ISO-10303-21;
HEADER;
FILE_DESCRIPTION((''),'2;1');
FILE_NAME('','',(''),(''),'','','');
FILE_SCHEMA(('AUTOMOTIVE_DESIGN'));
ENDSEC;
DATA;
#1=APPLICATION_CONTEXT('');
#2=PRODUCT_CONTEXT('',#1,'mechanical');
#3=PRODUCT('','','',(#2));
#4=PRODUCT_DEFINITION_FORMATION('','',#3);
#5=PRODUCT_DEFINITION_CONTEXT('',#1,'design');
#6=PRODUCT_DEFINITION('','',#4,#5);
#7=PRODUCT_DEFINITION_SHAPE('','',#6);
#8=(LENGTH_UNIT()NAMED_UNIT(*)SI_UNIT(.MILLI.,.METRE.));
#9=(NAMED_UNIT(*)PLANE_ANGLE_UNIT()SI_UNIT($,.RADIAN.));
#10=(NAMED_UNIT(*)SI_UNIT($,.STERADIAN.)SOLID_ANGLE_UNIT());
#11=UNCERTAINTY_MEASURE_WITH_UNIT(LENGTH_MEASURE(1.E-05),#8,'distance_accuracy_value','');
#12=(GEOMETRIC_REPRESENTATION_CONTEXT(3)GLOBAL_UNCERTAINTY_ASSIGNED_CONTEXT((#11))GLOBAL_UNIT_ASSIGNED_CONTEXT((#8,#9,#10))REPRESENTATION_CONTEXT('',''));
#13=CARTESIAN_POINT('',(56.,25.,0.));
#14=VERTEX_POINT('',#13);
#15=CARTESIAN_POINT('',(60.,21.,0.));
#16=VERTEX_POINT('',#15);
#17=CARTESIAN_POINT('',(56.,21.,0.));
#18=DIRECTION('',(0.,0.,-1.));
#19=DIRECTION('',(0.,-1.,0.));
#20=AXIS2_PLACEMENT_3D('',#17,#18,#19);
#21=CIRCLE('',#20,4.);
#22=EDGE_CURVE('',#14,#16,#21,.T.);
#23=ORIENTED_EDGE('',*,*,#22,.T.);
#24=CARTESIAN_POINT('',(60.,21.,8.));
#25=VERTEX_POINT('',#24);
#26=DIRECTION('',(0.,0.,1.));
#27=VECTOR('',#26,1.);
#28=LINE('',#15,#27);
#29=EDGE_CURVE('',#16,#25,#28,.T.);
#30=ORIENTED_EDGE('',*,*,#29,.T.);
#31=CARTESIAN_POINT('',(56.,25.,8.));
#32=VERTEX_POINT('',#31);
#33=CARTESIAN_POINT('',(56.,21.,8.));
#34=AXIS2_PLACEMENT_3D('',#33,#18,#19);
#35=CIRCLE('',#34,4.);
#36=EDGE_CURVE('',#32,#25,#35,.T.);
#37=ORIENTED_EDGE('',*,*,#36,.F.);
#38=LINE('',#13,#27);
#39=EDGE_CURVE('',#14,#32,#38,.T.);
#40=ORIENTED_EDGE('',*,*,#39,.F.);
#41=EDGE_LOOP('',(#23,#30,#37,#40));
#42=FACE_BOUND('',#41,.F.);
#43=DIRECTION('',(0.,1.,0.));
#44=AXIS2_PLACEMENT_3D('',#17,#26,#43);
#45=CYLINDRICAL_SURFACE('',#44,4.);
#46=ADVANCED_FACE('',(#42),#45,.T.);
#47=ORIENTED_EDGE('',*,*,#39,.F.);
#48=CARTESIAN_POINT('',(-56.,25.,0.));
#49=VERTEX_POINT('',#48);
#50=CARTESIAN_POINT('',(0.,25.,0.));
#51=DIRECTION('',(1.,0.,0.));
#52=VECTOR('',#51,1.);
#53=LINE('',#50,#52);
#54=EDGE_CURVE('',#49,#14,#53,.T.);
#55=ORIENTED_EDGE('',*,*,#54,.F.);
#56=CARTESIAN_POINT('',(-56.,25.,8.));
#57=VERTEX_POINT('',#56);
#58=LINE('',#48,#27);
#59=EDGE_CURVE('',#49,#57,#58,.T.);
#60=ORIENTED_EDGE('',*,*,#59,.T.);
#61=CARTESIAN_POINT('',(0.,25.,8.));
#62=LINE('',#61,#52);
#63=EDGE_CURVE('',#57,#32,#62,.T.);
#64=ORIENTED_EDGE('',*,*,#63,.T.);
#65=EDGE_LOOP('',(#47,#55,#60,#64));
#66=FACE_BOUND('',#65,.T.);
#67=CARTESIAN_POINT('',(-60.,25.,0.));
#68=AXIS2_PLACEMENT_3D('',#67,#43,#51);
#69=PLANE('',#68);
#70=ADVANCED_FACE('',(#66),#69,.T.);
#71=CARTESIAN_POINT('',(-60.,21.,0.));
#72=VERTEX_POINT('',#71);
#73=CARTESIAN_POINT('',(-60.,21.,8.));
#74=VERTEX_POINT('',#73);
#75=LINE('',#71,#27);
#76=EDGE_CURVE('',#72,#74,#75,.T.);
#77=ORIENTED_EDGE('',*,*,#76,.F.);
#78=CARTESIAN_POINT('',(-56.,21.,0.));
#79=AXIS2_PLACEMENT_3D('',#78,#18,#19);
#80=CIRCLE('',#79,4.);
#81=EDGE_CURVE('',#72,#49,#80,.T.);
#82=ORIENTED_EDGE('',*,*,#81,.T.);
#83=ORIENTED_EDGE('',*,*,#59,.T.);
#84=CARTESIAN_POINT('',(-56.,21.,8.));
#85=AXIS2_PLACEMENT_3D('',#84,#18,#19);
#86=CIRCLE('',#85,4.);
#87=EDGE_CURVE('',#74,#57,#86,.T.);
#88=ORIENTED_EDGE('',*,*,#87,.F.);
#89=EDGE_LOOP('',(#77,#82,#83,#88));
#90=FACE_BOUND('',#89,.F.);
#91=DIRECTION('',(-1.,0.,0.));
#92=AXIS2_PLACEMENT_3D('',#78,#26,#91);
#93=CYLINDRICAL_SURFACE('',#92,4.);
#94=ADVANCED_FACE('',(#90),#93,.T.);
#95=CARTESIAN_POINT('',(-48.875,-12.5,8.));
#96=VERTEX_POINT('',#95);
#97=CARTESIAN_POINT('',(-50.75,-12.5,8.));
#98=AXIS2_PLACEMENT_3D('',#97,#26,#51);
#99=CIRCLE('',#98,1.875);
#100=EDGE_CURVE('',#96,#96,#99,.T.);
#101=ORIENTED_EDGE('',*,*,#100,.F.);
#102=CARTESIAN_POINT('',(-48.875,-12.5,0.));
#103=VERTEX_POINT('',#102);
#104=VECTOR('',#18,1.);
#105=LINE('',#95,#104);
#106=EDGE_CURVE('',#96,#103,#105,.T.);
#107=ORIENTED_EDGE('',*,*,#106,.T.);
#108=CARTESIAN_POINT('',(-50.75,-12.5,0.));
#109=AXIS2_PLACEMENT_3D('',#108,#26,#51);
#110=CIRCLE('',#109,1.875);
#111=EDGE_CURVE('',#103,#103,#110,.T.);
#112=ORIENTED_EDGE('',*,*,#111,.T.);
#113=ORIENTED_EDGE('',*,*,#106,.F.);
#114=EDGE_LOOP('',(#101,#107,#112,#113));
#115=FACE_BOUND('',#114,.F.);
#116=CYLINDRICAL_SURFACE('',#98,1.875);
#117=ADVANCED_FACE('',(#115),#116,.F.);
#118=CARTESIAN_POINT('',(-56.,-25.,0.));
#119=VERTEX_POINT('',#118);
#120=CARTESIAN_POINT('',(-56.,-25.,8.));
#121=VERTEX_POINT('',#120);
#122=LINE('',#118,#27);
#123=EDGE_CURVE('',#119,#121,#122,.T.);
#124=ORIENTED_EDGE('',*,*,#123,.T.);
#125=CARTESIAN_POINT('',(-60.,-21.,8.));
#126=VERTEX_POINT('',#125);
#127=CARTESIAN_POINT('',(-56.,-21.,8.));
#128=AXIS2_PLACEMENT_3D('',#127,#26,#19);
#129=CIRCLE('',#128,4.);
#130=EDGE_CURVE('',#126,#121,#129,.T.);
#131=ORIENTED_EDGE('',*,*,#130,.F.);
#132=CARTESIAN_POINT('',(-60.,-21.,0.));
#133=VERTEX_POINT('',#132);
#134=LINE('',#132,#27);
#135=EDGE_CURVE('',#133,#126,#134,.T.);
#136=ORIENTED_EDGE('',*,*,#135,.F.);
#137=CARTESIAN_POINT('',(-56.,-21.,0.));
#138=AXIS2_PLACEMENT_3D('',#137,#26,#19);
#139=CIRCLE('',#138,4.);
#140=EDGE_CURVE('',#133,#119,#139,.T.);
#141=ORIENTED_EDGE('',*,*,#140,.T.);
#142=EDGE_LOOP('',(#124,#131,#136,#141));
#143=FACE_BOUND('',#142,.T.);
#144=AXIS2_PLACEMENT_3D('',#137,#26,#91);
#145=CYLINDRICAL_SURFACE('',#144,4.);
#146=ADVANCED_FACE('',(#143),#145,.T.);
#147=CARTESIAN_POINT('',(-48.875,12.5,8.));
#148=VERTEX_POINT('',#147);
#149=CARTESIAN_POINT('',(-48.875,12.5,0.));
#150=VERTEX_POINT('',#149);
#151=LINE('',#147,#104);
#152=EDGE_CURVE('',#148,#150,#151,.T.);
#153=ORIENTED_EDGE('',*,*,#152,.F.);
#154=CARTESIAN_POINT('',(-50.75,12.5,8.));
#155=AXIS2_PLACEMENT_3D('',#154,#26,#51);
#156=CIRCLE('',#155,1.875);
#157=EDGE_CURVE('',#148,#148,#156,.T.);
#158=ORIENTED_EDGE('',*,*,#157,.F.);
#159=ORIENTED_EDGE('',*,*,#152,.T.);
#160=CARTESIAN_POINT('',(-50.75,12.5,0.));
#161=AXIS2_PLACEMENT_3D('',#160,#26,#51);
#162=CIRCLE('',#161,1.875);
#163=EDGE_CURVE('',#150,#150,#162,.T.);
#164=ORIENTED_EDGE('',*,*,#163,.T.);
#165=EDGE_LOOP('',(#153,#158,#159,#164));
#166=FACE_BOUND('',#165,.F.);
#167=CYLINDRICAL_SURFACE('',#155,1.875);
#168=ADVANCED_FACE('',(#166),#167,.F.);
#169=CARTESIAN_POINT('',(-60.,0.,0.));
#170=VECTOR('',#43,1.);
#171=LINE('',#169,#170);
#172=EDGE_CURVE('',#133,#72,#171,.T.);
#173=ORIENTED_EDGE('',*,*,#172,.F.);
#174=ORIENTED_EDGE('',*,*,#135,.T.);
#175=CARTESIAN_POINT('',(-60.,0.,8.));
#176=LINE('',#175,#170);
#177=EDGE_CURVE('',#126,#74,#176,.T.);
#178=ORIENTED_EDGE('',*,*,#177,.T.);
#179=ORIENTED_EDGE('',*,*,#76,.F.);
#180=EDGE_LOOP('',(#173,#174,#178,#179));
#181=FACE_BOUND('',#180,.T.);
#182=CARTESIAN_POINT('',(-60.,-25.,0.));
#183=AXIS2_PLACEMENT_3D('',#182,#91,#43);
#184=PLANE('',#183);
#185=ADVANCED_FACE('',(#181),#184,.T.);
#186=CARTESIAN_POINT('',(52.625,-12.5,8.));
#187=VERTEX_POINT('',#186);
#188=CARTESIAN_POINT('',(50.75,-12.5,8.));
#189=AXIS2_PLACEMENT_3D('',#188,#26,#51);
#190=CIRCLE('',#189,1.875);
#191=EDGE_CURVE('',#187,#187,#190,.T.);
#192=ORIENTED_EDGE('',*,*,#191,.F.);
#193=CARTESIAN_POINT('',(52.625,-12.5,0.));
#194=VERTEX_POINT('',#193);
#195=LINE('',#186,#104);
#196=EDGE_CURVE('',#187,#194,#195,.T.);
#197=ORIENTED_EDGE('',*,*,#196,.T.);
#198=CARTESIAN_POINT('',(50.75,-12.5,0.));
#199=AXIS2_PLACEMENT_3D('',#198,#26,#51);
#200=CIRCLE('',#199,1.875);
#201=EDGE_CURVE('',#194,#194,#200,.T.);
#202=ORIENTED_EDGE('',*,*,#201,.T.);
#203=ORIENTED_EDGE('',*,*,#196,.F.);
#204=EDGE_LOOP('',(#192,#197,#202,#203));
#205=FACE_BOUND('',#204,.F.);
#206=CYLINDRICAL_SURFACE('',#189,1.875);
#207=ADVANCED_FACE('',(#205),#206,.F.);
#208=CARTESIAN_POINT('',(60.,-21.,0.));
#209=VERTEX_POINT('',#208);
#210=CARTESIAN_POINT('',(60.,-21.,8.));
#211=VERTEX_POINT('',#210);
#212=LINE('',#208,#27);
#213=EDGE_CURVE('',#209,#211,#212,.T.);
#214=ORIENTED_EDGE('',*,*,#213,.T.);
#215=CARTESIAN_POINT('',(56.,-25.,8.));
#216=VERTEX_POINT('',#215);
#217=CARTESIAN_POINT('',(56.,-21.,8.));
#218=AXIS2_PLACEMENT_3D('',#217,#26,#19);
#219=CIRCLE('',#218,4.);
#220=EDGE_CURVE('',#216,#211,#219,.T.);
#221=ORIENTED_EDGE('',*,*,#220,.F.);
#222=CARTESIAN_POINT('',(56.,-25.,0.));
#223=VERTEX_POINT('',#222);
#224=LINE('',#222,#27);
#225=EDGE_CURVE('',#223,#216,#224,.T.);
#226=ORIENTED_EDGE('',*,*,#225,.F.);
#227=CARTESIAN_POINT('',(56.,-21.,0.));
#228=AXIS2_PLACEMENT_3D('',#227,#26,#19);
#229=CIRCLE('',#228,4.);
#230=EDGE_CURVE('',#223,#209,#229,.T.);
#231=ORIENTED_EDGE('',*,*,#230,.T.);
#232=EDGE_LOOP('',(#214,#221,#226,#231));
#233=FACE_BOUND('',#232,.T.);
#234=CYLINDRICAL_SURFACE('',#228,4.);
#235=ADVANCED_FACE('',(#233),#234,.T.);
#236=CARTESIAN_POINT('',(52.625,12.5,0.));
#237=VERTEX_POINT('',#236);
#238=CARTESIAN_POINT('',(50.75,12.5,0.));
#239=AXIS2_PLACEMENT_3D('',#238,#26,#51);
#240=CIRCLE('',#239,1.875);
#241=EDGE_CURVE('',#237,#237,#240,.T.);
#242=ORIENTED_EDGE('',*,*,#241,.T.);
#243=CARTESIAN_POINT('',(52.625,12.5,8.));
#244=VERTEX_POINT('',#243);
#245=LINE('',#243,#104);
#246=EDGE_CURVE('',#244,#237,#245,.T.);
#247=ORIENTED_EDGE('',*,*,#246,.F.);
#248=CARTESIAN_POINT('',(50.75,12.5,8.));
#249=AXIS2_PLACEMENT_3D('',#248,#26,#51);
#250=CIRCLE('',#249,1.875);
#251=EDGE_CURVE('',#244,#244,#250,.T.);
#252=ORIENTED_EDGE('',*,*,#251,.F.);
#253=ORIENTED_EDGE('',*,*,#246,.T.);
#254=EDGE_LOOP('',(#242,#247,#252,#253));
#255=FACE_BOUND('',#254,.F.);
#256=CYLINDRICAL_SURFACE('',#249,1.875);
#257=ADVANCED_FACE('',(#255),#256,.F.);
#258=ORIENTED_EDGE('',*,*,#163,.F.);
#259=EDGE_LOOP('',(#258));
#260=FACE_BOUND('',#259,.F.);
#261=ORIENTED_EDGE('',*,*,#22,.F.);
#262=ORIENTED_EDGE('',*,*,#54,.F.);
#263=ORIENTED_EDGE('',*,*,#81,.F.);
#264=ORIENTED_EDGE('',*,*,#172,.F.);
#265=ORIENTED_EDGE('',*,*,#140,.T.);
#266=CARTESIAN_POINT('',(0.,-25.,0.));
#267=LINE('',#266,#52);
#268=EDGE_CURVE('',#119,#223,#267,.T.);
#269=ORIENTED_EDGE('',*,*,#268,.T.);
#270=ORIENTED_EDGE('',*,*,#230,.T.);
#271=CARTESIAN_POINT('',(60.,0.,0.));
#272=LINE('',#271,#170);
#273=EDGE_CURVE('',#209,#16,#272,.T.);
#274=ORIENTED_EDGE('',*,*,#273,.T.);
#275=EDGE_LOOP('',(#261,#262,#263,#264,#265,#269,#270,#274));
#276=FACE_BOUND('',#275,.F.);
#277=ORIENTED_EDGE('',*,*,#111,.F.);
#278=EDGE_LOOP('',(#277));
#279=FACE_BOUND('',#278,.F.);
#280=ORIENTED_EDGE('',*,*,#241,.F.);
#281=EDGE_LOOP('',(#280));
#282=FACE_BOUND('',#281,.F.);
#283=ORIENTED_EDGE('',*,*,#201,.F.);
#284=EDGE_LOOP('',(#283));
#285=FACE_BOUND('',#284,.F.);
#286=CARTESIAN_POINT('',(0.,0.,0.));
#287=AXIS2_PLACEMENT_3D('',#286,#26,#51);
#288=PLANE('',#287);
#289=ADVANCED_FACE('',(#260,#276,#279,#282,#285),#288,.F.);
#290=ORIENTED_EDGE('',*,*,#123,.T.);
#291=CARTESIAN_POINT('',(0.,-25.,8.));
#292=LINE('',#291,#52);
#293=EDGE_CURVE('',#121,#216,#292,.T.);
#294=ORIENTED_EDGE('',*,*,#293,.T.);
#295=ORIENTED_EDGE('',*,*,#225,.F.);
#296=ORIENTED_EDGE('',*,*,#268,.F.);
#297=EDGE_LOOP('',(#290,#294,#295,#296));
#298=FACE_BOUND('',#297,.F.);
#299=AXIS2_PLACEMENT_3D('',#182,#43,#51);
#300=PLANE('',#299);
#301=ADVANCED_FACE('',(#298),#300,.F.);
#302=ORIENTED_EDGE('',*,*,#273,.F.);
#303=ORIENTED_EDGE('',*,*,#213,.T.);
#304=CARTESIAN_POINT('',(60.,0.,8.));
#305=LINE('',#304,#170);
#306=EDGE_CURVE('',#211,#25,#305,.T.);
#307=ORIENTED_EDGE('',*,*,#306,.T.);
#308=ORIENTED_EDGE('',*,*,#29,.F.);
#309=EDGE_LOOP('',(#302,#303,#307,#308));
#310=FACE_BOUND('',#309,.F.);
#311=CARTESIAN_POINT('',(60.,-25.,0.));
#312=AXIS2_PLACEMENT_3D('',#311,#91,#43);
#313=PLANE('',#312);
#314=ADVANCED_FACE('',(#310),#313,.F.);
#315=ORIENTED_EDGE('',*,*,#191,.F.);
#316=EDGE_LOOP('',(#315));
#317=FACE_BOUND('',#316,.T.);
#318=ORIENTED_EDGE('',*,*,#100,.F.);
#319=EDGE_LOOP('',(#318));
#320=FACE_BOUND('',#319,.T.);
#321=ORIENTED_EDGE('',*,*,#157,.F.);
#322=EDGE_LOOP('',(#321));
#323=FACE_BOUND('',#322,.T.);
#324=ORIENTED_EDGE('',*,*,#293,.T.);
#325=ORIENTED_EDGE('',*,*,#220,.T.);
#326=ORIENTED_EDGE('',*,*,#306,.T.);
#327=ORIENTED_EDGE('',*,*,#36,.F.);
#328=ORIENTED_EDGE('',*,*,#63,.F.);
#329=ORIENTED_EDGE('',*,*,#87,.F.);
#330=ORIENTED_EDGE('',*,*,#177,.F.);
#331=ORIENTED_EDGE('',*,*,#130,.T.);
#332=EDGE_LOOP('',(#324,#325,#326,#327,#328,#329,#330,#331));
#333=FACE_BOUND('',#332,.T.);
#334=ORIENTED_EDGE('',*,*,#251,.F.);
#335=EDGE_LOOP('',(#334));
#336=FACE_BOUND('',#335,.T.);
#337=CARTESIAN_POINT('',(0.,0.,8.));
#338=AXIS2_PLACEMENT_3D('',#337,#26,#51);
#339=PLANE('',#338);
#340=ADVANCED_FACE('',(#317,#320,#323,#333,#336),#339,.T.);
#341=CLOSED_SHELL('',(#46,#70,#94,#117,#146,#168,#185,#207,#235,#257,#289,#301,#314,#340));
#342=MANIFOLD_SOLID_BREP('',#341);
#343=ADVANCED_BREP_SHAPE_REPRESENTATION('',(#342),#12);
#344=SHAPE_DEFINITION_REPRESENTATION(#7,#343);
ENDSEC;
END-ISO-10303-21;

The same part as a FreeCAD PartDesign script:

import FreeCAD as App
import Part
import Sketcher

V = App.Vector


def edges_at(feature, points):
    """Names of the edges that pass closest to the given points."""
    edges = feature.Shape.Edges
    near = lambda p: min(range(len(edges)), key=lambda i: edges[i].distToShape(Part.Vertex(*p))[0])
    return sorted({f"Edge{near(p) + 1}" for p in points})


def add_polygon(sketch, points):
    """Adds a closed chain of lines whose ends are joined by coincident constraints."""
    first, n = sketch.GeometryCount, len(points)
    for a, b in zip(points, points[1:] + points[:1]):
        sketch.addGeometry(Part.LineSegment(App.Vector(*a, 0), App.Vector(*b, 0)), False)
    for i in range(n):
        sketch.addConstraint(Sketcher.Constraint("Coincident", first + i, 2, first + (i + 1) % n, 1))

doc = App.newDocument("Part")
body = doc.addObject("PartDesign::Body", "Body")

# Sketch on XY plane
sketch1 = doc.addObject("Sketcher::SketchObject", "Sketch")
body.addObject(sketch1)
sketch1.AttachmentSupport = (doc.XY_Plane, [""])
sketch1.MapMode = "FlatFace"
add_polygon(sketch1, [(-60, 25), (-60, -25), (60, -25), (60, 25)])  # lines 0-3
sketch1.addConstraint([
    Sketcher.Constraint("Vertical", 0),
    Sketcher.Constraint("Horizontal", 1),
    Sketcher.Constraint("Vertical", 2),
    Sketcher.Constraint("Horizontal", 3),
    Sketcher.Constraint("Symmetric", 0, 2, 2, 2, -1, 1),
    Sketcher.Constraint("DistanceX", 1, 1, 1, 2, 120.0),
    Sketcher.Constraint("DistanceY", 0, 2, 0, 1, 50.0),
])
pad1 = doc.addObject("PartDesign::Pad", "Pad")
body.addObject(pad1)
pad1.Profile = sketch1
pad1.Length = 8

# Sketch on XY plane
sketch2 = doc.addObject("Sketcher::SketchObject", "Sketch001")
body.addObject(sketch2)
sketch2.AttachmentSupport = (doc.XY_Plane, [""])
sketch2.MapMode = "FlatFace"
sketch2.AttachmentOffset = App.Placement(V(0, 0, 8), App.Rotation())
sketch2.addGeometry([
    Part.Circle(V(-50.8, 12.5, 0), V(0, 0, 1), 1.9),
    Part.Circle(V(50.8, 12.5, 0), V(0, 0, 1), 1.9),
    Part.Circle(V(-50.8, -12.5, 0), V(0, 0, 1), 1.9),
    Part.Circle(V(50.8, -12.5, 0), V(0, 0, 1), 1.9),
], False)
sketch2.addConstraint([
    Sketcher.Constraint("Equal", 0, 1),
    Sketcher.Constraint("Equal", 1, 2),
    Sketcher.Constraint("Equal", 2, 3),
    Sketcher.Constraint("Symmetric", 1, 3, 2, 3, -1, 1),
    Sketcher.Constraint("Symmetric", 0, 3, 3, 3, -1, 1),
    Sketcher.Constraint("Symmetric", 0, 3, 1, 3, -2),
    Sketcher.Constraint("Diameter", 0, 3.75),
    Sketcher.Constraint("DistanceY", 2, 3, 0, 3, 25.0),
    Sketcher.Constraint("DistanceX", 0, 3, 1, 3, 101.5),
])
pocket1 = doc.addObject("PartDesign::Pocket", "Pocket")
body.addObject(pocket1)
pocket1.Profile = sketch2
pocket1.Type = "ThroughAll"
doc.recompute()

fillet = doc.addObject("PartDesign::Fillet", "Fillet")
body.addObject(fillet)
fillet.Base = (pocket1, edges_at(pocket1, [
    (-60, 25, 4),
    (-60, -25, 4),
    (60, -25, 4),
    (60, 25, 4),
]))
fillet.Radius = 4

doc.recompute()
